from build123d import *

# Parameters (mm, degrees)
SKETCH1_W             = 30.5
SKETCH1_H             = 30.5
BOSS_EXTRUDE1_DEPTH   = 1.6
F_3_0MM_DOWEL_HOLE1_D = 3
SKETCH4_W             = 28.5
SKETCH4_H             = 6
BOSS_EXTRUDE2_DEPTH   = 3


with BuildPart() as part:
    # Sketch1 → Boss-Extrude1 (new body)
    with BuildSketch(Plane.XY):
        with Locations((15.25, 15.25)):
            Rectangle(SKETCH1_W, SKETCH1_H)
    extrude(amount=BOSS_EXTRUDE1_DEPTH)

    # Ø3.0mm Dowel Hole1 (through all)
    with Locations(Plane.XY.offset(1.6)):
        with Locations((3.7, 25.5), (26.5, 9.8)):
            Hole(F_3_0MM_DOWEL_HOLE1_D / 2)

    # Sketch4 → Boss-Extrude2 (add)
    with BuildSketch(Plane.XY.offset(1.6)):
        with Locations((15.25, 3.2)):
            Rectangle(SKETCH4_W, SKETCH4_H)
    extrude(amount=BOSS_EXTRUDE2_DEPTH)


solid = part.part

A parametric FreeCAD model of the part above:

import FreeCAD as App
import Part
import Sketcher
from FreeCAD import Vector
Q = App.Units.Quantity

doc = App.newDocument("Part")
body = doc.addObject("PartDesign::Body", "Body")

# Sketch on XY plane
sketch1 = body.newObject("Sketcher::SketchObject", "Sketch")
sketch1.AttachmentSupport = (doc.getObject("XY_Plane"), [""])
sketch1.MapMode = "FlatFace"
sketch1.addGeometry([
    Part.LineSegment(Vector(0, 30, 0), Vector(0, 0, 0)),
    Part.LineSegment(Vector(0, 0, 0), Vector(30, 0, 0)),
    Part.LineSegment(Vector(30, 0, 0), Vector(30, 30, 0)),
    Part.LineSegment(Vector(30, 30, 0), Vector(0, 30, 0)),
], False)
sketch1.addConstraint([
    Sketcher.Constraint("Coincident", 0, 2, 1, 1),
    Sketcher.Constraint("Coincident", 1, 2, 2, 1),
    Sketcher.Constraint("Coincident", 2, 2, 3, 1),
    Sketcher.Constraint("Coincident", 3, 2, 0, 1),
    Sketcher.Constraint("Vertical", 0),
    Sketcher.Constraint("Horizontal", 1),
    Sketcher.Constraint("Vertical", 2),
    Sketcher.Constraint("Horizontal", 3),
    Sketcher.Constraint("Coincident", 0, 2, -1, 1),
    Sketcher.Constraint("Equal", 3, 0),
    Sketcher.Constraint("DistanceX", 1, 1, 1, 2, Q("30.5 mm")),
])
pad1 = body.newObject("PartDesign::Pad", "Pad")
pad1.Profile = sketch1
pad1.Length = 1.6

# Sketch on XY plane
sketch2 = body.newObject("Sketcher::SketchObject", "Sketch001")
sketch2.AttachmentSupport = (doc.getObject("XY_Plane"), [""])
sketch2.MapMode = "FlatFace"
sketch2.AttachmentOffset = App.Placement(Vector(0, 0, 1.6), App.Rotation())
sketch2.addGeometry([
    Part.Circle(Vector(3.7, 25.5, 0), Vector(0, 0, 1), 1.5),
    Part.Circle(Vector(26.5, 9.8, 0), Vector(0, 0, 1), 1.5),
], False)
sketch2.addConstraint([
    Sketcher.Constraint("Equal", 0, 1),
    Sketcher.Constraint("Diameter", 0, Q("3 mm")),
    Sketcher.Constraint("DistanceX", -1, 1, 0, 3, Q("3.7 mm")),
    Sketcher.Constraint("DistanceY", -1, 1, 0, 3, Q("25.5 mm")),
    Sketcher.Constraint("DistanceX", -1, 1, 1, 3, Q("26.5 mm")),
    Sketcher.Constraint("DistanceY", -1, 1, 1, 3, Q("9.8 mm")),
])
doc.recompute()
hole = body.newObject("PartDesign::Hole", "Hole")
hole.Profile = sketch2
hole.ThreadType = "None"
hole.Diameter = 3
hole.DepthType = "ThroughAll"

# Sketch on XY plane
sketch3 = body.newObject("Sketcher::SketchObject", "Sketch002")
sketch3.AttachmentSupport = (doc.getObject("XY_Plane"), [""])
sketch3.MapMode = "FlatFace"
sketch3.AttachmentOffset = App.Placement(Vector(0, 0, 1.6), App.Rotation())
sketch3.addGeometry([
    Part.LineSegment(Vector(1, 6, 0), Vector(1, 0, 0)),
    Part.LineSegment(Vector(1, 0, 0), Vector(30, 0, 0)),
    Part.LineSegment(Vector(30, 0, 0), Vector(30, 6, 0)),
    Part.LineSegment(Vector(30, 6, 0), Vector(1, 6, 0)),
], False)
sketch3.addConstraint([
    Sketcher.Constraint("Coincident", 0, 2, 1, 1),
    Sketcher.Constraint("Coincident", 1, 2, 2, 1),
    Sketcher.Constraint("Coincident", 2, 2, 3, 1),
    Sketcher.Constraint("Coincident", 3, 2, 0, 1),
    Sketcher.Constraint("Vertical", 0),
    Sketcher.Constraint("Horizontal", 1),
    Sketcher.Constraint("Vertical", 2),
    Sketcher.Constraint("Horizontal", 3),
    Sketcher.Constraint("DistanceY", 0, 2, 0, 1, Q("6 mm")),
    Sketcher.Constraint("DistanceX", 1, 1, 1, 2, Q("28.5 mm")),
    Sketcher.Constraint("DistanceX", -1, 1, 0, 2, Q("1 mm")),
    Sketcher.Constraint("DistanceY", -1, 1, 0, 2, Q("0.2 mm")),
])
pad2 = body.newObject("PartDesign::Pad", "Pad001")
pad2.Profile = sketch3
pad2.Length = 3

doc.recompute()
